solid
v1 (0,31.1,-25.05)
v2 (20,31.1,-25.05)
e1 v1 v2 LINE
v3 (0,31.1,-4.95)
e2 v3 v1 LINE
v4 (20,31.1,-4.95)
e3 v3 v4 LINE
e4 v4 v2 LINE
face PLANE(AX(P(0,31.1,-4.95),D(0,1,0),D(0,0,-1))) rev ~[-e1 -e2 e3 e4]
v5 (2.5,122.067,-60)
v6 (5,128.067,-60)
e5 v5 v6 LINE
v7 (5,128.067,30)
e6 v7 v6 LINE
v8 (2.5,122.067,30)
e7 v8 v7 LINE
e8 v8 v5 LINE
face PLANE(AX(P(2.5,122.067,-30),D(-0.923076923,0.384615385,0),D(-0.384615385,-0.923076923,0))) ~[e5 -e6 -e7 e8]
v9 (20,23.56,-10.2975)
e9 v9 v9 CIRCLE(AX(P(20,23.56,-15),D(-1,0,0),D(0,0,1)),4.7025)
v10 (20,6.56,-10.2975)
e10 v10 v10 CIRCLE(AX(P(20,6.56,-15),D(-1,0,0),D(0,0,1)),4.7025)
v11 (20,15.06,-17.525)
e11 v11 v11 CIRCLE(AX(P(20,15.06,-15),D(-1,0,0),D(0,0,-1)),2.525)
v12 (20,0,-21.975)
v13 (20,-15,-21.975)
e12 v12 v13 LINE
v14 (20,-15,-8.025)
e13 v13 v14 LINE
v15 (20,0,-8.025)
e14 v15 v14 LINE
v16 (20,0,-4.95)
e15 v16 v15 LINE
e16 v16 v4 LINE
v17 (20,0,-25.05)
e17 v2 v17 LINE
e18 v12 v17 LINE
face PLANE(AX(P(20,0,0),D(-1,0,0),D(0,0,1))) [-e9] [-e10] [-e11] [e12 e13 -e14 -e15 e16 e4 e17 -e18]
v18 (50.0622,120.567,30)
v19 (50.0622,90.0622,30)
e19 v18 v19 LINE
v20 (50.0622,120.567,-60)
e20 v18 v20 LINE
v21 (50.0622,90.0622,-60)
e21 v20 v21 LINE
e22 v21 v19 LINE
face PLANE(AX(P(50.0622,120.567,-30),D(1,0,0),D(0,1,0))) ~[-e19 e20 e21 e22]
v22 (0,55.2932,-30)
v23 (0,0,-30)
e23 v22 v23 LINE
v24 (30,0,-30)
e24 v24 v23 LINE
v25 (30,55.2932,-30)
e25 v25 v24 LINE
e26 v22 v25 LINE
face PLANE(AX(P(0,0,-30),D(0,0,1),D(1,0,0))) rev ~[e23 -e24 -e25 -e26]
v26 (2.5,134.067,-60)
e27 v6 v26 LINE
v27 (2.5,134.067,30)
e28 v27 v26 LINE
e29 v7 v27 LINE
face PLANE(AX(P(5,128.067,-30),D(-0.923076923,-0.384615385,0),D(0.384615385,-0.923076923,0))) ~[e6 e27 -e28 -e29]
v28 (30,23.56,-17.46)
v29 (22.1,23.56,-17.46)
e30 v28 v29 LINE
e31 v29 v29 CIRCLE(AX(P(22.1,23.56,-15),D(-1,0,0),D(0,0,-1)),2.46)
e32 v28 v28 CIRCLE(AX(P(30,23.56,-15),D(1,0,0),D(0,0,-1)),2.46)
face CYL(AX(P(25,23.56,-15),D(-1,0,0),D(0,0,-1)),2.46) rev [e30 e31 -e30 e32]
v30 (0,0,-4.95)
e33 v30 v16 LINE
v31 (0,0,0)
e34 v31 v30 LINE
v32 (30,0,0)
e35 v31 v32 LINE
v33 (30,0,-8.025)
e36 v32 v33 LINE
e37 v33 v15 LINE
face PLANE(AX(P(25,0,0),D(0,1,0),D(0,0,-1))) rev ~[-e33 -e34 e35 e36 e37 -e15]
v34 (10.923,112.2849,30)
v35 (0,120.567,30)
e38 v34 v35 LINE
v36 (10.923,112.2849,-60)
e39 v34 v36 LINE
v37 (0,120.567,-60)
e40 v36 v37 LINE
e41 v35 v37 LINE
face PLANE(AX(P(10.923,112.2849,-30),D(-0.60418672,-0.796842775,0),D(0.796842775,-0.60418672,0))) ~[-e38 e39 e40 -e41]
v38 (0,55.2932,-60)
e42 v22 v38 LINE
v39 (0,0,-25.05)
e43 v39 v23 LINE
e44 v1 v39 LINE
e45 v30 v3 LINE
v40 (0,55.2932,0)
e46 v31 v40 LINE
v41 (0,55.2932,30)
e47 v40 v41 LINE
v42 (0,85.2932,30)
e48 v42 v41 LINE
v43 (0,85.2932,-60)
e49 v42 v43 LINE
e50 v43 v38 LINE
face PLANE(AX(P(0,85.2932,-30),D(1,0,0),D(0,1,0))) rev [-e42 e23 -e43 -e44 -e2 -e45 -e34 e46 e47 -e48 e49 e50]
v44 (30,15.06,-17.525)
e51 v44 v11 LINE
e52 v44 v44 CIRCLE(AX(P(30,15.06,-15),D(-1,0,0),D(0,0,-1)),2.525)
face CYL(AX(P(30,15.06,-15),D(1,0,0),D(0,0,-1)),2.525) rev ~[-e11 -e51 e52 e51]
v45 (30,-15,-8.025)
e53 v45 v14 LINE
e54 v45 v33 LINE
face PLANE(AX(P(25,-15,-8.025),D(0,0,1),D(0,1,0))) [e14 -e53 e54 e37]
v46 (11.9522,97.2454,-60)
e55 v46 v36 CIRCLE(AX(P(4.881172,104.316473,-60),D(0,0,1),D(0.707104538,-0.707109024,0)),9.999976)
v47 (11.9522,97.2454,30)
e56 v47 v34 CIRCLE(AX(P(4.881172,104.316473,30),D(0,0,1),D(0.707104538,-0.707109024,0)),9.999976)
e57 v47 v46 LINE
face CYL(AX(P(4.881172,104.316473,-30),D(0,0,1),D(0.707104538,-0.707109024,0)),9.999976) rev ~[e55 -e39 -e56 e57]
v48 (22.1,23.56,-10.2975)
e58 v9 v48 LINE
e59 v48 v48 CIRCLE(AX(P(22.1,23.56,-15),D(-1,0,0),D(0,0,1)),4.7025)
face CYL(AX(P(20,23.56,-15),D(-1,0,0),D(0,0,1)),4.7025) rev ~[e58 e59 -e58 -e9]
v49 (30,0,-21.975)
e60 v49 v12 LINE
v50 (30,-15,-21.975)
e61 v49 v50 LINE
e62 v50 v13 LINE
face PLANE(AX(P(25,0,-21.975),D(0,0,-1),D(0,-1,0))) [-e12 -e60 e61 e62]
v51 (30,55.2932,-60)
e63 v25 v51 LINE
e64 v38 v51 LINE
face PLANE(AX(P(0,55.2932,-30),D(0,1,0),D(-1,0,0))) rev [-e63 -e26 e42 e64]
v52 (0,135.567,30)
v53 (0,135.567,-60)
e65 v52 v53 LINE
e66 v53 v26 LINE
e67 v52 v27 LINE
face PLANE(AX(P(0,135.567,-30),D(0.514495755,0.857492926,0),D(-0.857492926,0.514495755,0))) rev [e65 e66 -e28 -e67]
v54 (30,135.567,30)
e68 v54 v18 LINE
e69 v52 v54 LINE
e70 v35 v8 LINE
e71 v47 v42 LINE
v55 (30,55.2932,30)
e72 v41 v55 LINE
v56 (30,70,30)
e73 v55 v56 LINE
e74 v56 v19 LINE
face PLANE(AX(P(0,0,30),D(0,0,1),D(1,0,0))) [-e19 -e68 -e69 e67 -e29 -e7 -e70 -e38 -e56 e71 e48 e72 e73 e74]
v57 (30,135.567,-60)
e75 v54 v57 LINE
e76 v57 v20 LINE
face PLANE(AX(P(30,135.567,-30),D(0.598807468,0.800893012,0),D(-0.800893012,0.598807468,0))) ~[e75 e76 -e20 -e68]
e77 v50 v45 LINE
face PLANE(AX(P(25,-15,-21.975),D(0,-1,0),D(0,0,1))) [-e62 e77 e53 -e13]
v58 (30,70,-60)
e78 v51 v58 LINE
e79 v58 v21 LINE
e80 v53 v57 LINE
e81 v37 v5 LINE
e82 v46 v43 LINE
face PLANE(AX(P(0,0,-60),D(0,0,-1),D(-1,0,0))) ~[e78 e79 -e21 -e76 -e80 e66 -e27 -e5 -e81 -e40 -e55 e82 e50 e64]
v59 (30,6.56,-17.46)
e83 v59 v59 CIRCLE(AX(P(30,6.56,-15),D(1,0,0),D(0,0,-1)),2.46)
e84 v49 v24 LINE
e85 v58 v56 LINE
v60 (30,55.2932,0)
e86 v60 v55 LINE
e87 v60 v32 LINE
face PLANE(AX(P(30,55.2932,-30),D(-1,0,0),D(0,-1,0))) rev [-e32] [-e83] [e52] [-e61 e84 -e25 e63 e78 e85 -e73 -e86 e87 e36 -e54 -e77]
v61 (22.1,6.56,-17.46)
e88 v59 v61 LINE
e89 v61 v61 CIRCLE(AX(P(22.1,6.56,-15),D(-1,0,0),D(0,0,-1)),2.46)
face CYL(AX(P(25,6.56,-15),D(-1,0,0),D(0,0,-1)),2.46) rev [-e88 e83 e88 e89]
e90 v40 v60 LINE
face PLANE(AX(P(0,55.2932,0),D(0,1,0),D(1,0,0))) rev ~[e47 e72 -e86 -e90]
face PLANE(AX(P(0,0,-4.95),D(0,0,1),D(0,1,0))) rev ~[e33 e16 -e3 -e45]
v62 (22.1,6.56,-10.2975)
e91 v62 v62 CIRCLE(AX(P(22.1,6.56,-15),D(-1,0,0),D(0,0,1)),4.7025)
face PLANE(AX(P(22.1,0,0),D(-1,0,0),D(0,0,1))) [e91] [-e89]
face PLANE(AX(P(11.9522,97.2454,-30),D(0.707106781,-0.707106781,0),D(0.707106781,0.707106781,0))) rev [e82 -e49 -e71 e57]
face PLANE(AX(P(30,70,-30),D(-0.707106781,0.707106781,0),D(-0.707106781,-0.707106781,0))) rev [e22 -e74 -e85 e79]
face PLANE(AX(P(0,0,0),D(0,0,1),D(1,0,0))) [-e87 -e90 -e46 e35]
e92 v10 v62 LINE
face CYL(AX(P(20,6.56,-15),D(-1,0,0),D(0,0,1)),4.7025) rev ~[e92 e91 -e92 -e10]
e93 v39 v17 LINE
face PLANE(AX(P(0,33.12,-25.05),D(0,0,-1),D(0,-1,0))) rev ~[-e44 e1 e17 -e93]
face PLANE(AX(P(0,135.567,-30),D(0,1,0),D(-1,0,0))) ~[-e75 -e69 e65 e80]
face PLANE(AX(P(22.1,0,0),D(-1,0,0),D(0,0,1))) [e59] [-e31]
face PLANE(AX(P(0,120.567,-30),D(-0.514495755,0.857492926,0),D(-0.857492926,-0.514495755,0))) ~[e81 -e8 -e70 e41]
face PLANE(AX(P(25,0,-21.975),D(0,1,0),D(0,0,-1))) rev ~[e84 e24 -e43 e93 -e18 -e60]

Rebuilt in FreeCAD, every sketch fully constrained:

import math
import FreeCAD as App
import Part
import Sketcher
Q = App.Units.Quantity


def add_polygon(sketch, points):
    """Adds a closed chain of lines whose ends are joined by coincident constraints."""
    first, n = sketch.GeometryCount, len(points)
    for a, b in zip(points, points[1:] + points[:1]):
        sketch.addGeometry(Part.LineSegment(App.Vector(*a, 0), App.Vector(*b, 0)), False)
    for i in range(n):
        sketch.addConstraint(Sketcher.Constraint("Coincident", first + i, 2, first + (i + 1) % n, 1))

doc = App.newDocument("Part")
body = doc.addObject("PartDesign::Body", "Body")

sketch1 = doc.addObject("Sketcher::SketchObject", "Sketch")
body.addObject(sketch1)
sketch1.AttachmentSupport = (doc.XY_Plane, [""])
sketch1.MapMode = "FlatFace"
add_polygon(sketch1, [(0, 40), (0, 0), (25, 0), (25, 40)])
sketch1.addConstraint([
    Sketcher.Constraint("Vertical", 0),
    Sketcher.Constraint("Horizontal", 1),
    Sketcher.Constraint("Vertical", 2),
    Sketcher.Constraint("Horizontal", 3),
    Sketcher.Constraint("Coincident", 0, 2, -1, 1),
    Sketcher.Constraint("DistanceX", 1, 1, 1, 2, Q("25 mm")),
    Sketcher.Constraint("DistanceY", 0, 2, 0, 1, Q("40 mm")),
])
pad1 = doc.addObject("PartDesign::Pad", "Pad")
body.addObject(pad1)
pad1.Profile = sketch1
pad1.Length = 30
pad1.Reversed = True

sketch2 = doc.addObject("Sketcher::SketchObject", "Sketch001")
body.addObject(sketch2)
sketch2.AttachmentSupport = (doc.YZ_Plane, [""])
sketch2.MapMode = "FlatFace"
sketch2.AttachmentOffset = App.Placement(App.Vector(0, 0, 25), App.Rotation())
sketch2.addGeometry(Part.Circle(App.Vector(6.56, -15, 0), App.Vector(0, 0, 1), 2.46), False)
sketch2.addConstraint([
    Sketcher.Constraint("Diameter", 0, Q("4.92 mm")),
    Sketcher.Constraint("DistanceY", 0, 3, -1, 1, Q("15 mm")),
    Sketcher.Constraint("DistanceX", -1, 1, 0, 3, Q("6.56 mm")),
])
pocket1 = doc.addObject("PartDesign::Pocket", "Pocket")
body.addObject(pocket1)
pocket1.Profile = sketch2
pocket1.Length = 30

sketch3 = doc.addObject("Sketcher::SketchObject", "Sketch002")
body.addObject(sketch3)
sketch3.AttachmentSupport = (doc.YZ_Plane, [""])
sketch3.MapMode = "FlatFace"
add_polygon(sketch3, [(0, -25.05), (0, -4.95), (33.12, -4.95), (33.12, -25.05)])
sketch3.addConstraint([
    Sketcher.Constraint("Vertical", 0),
    Sketcher.Constraint("Horizontal", 1),
    Sketcher.Constraint("Vertical", 2),
    Sketcher.Constraint("Horizontal", 3),
    Sketcher.Constraint("PointOnObject", 0, 2, -2),
    Sketcher.Constraint("DistanceY", 0, 1, 0, 2, Q("20.1 mm")),
    Sketcher.Constraint("DistanceX", 1, 1, 1, 2, Q("33.12 mm")),
    Sketcher.Constraint("DistanceY", 0, 2, -1, 1, Q("4.95 mm")),
])
pocket2 = doc.addObject("PartDesign::Pocket", "Pocket001")
body.addObject(pocket2)
pocket2.Profile = sketch3
pocket2.Length = 20
pocket2.Reversed = True

sketch4 = doc.addObject("Sketcher::SketchObject", "Sketch003")
body.addObject(sketch4)
sketch4.AttachmentSupport = (doc.XZ_Plane, [""])
sketch4.MapMode = "FlatFace"
add_polygon(sketch4, [(25, -8.025), (20, -8.025), (20, -21.975), (25, -21.975)])
sketch4.addConstraint([
    Sketcher.Constraint("Horizontal", 0),
    Sketcher.Constraint("Vertical", 1),
    Sketcher.Constraint("Horizontal", 2),
    Sketcher.Constraint("Vertical", 3),
    Sketcher.Constraint("DistanceY", 1, 2, 1, 1, Q("13.95 mm")),
    Sketcher.Constraint("DistanceX", 0, 2, 0, 1, Q("5 mm")),
    Sketcher.Constraint("DistanceX", -1, 1, 0, 2, Q("20 mm")),
    Sketcher.Constraint("DistanceY", 0, 2, -1, 1, Q("8.025 mm")),
])
pad2 = doc.addObject("PartDesign::Pad", "Pad001")
body.addObject(pad2)
pad2.Profile = sketch4
pad2.Length = 15

sketch5 = doc.addObject("Sketcher::SketchObject", "Sketch004")
body.addObject(sketch5)
sketch5.AttachmentSupport = (doc.YZ_Plane, [""])
sketch5.MapMode = "FlatFace"
sketch5.AttachmentOffset = App.Placement(App.Vector(0, 0, 20), App.Rotation())
sketch5.addGeometry([
    Part.Circle(App.Vector(6.56, -15, 0), App.Vector(0, 0, 1), 4.7025),
    Part.Circle(App.Vector(6.56, -15, 0), App.Vector(0, 0, 1), 2.46),
], False)
sketch5.addConstraint([
    Sketcher.Constraint("Coincident", 1, 3, 0, 3),
    Sketcher.Constraint("Diameter", 0, Q("9.405 mm")),
    Sketcher.Constraint("Diameter", 1, Q("4.92 mm")),
    Sketcher.Constraint("DistanceY", 0, 3, -1, 1, Q("15 mm")),
    Sketcher.Constraint("DistanceX", -1, 1, 0, 3, Q("6.56 mm")),
])
pocket3 = doc.addObject("PartDesign::Pocket", "Pocket002")
body.addObject(pocket3)
pocket3.Profile = sketch5
pocket3.Length = 2.1
pocket3.Reversed = True

sketch6 = doc.addObject("Sketcher::SketchObject", "Sketch005")
body.addObject(sketch6)
sketch6.AttachmentSupport = (doc.YZ_Plane, [""])
sketch6.MapMode = "FlatFace"
sketch6.AttachmentOffset = App.Placement(App.Vector(0, 0, 25), App.Rotation())
sketch6.addGeometry(Part.Circle(App.Vector(23.56, -15, 0), App.Vector(0, 0, 1), 2.46), False)
sketch6.addConstraint([
    Sketcher.Constraint("Diameter", 0, Q("4.92 mm")),
    Sketcher.Constraint("DistanceY", 0, 3, -1, 1, Q("15 mm")),
    Sketcher.Constraint("DistanceX", -1, 1, 0, 3, Q("23.56 mm")),
])
pocket4 = doc.addObject("PartDesign::Pocket", "Pocket003")
body.addObject(pocket4)
pocket4.Profile = sketch6
pocket4.Length = 10

sketch7 = doc.addObject("Sketcher::SketchObject", "Sketch006")
body.addObject(sketch7)
sketch7.AttachmentSupport = (doc.YZ_Plane, [""])
sketch7.MapMode = "FlatFace"
sketch7.AttachmentOffset = App.Placement(App.Vector(0, 0, 20), App.Rotation())
sketch7.addGeometry([
    Part.Circle(App.Vector(23.56, -15, 0), App.Vector(0, 0, 1), 4.7025),
    Part.Circle(App.Vector(23.56, -15, 0), App.Vector(0, 0, 1), 2.46),
], False)
sketch7.addConstraint([
    Sketcher.Constraint("Coincident", 1, 3, 0, 3),
    Sketcher.Constraint("Diameter", 0, Q("9.405 mm")),
    Sketcher.Constraint("Diameter", 1, Q("4.92 mm")),
    Sketcher.Constraint("DistanceY", 0, 3, -1, 1, Q("15 mm")),
    Sketcher.Constraint("DistanceX", -1, 1, 0, 3, Q("23.56 mm")),
])
pocket5 = doc.addObject("PartDesign::Pocket", "Pocket004")
body.addObject(pocket5)
pocket5.Profile = sketch7
pocket5.Length = 2.1
pocket5.Reversed = True

sketch8 = doc.addObject("Sketcher::SketchObject", "Sketch007")
body.addObject(sketch8)
sketch8.AttachmentSupport = (doc.YZ_Plane, [""])
sketch8.MapMode = "FlatFace"
sketch8.AttachmentOffset = App.Placement(App.Vector(0, 0, 25), App.Rotation())
add_polygon(sketch8, [(0, -30), (40, -30), (40, 0), (0, 0), (0, -8.025), (-15, -8.025), (-15, -21.975), (0, -21.975)])
sketch8.addGeometry(Part.Circle(App.Vector(6.56, -15, 0), App.Vector(0, 0, 1), 2.46), False)
sketch8.addGeometry(Part.Circle(App.Vector(23.56, -15, 0), App.Vector(0, 0, 1), 2.46), False)
sketch8.addConstraint([
    Sketcher.Constraint("Horizontal", 0),
    Sketcher.Constraint("Vertical", 1),
    Sketcher.Constraint("Horizontal", 2),
    Sketcher.Constraint("Vertical", 3),
    Sketcher.Constraint("Horizontal", 4),
    Sketcher.Constraint("Vertical", 5),
    Sketcher.Constraint("Horizontal", 6),
    Sketcher.Constraint("Vertical", 7),
    Sketcher.Constraint("Coincident", 2, 2, -1, 1),
    Sketcher.Constraint("Equal", 8, 9),
    Sketcher.Constraint("PointOnObject", 6, 2, -2),
    Sketcher.Constraint("Horizontal", 8, 3, 9, 3),
    Sketcher.Constraint("Equal", 3, 7),
    Sketcher.Constraint("Diameter", 8, Q("4.92 mm")),
    Sketcher.Constraint("DistanceX", 0, 1, 0, 2, Q("40 mm")),
    Sketcher.Constraint("DistanceX", 4, 2, 4, 1, Q("15 mm")),
    Sketcher.Constraint("DistanceY", 1, 1, 1, 2, Q("30 mm")),
    Sketcher.Constraint("DistanceY", 8, 3, -1, 1, Q("15 mm")),
    Sketcher.Constraint("DistanceX", 8, 3, 9, 3, Q("17 mm")),
    Sketcher.Constraint("DistanceY", 5, 2, 5, 1, Q("13.95 mm")),
    Sketcher.Constraint("DistanceX", -1, 1, 8, 3, Q("6.56 mm")),
])
pad3 = doc.addObject("PartDesign::Pad", "Pad002")
body.addObject(pad3)
pad3.Profile = sketch8
pad3.Length = 5

sketch9 = doc.addObject("Sketcher::SketchObject", "Sketch008")
body.addObject(sketch9)
sketch9.AttachmentSupport = (doc.XZ_Plane, [""])
sketch9.MapMode = "FlatFace"
sketch9.AttachmentOffset = App.Placement(App.Vector(0, 0, -40), App.Rotation())
add_polygon(sketch9, [(30, -30), (0, -30), (0, 0), (30, 0)])
sketch9.addConstraint([
    Sketcher.Constraint("Horizontal", 0),
    Sketcher.Constraint("Vertical", 1),
    Sketcher.Constraint("Horizontal", 2),
    Sketcher.Constraint("Vertical", 3),
    Sketcher.Constraint("Coincident", 1, 2, -1, 1),
    Sketcher.Constraint("Equal", 2, 1),
    Sketcher.Constraint("DistanceX", 0, 2, 0, 1, Q("30 mm")),
])
pad4 = doc.addObject("PartDesign::Pad", "Pad003")
body.addObject(pad4)
pad4.Profile = sketch9
pad4.Length = 30
pad4.Reversed = True

sketch10 = doc.addObject("Sketcher::SketchObject", "Sketch009")
body.addObject(sketch10)
sketch10.AttachmentSupport = (doc.YZ_Plane, [""])
sketch10.MapMode = "FlatFace"
sketch10.AttachmentOffset = App.Placement(App.Vector(0, 0, 30), App.Rotation())
sketch10.addGeometry(Part.Circle(App.Vector(15.06, -15, 0), App.Vector(0, 0, 1), 2.525), False)
sketch10.addConstraint([
    Sketcher.Constraint("Diameter", 0, Q("5.05 mm")),
    Sketcher.Constraint("DistanceY", 0, 3, -1, 1, Q("15 mm")),
    Sketcher.Constraint("DistanceX", -1, 1, 0, 3, Q("15.06 mm")),
])
pocket6 = doc.addObject("PartDesign::Pocket", "Pocket005")
body.addObject(pocket6)
pocket6.Profile = sketch10
pocket6.Length = 30

sketch11 = doc.addObject("Sketcher::SketchObject", "Sketch010")
body.addObject(sketch11)
sketch11.AttachmentSupport = (doc.YZ_Plane, [""])
sketch11.MapMode = "FlatFace"
add_polygon(sketch11, [(33.12, -4.95), (33.12, -25.05), (31.1, -25.05), (31.1, -4.95)])
sketch11.addConstraint([
    Sketcher.Constraint("Vertical", 0),
    Sketcher.Constraint("Horizontal", 1),
    Sketcher.Constraint("Vertical", 2),
    Sketcher.Constraint("Horizontal", 3),
    Sketcher.Constraint("DistanceX", 1, 2, 1, 1, Q("2.02 mm")),
    Sketcher.Constraint("DistanceY", 0, 2, 0, 1, Q("20.1 mm")),
    Sketcher.Constraint("DistanceX", -1, 1, 1, 2, Q("31.1 mm")),
    Sketcher.Constraint("DistanceY", 0, 2, -1, 1, Q("25.05 mm")),
])
pad5 = doc.addObject("PartDesign::Pad", "Pad004")
body.addObject(pad5)
pad5.Profile = sketch11
pad5.Length = 20

sketch12 = doc.addObject("Sketcher::SketchObject", "Sketch011")
body.addObject(sketch12)
sketch12.AttachmentSupport = (doc.XY_Plane, [""])
sketch12.MapMode = "FlatFace"
sketch12.addGeometry([
    Part.LineSegment(App.Vector(0, 85.2932, 0), App.Vector(0, 70, 0)),
    Part.LineSegment(App.Vector(0, 70, 0), App.Vector(30, 70, 0)),
    Part.LineSegment(App.Vector(30, 70, 0), App.Vector(50.0622, 90.0622, 0)),
    Part.LineSegment(App.Vector(50.0622, 90.0622, 0), App.Vector(50.0622, 120.567, 0)),
    Part.LineSegment(App.Vector(50.0622, 120.567, 0), App.Vector(30, 135.567, 0)),
    Part.LineSegment(App.Vector(30, 135.567, 0), App.Vector(0, 135.567, 0)),
    Part.LineSegment(App.Vector(0, 135.567, 0), App.Vector(2.5, 134.067, 0)),
    Part.LineSegment(App.Vector(2.5, 134.067, 0), App.Vector(5, 128.067, 0)),
    Part.LineSegment(App.Vector(5, 128.067, 0), App.Vector(2.5, 122.067, 0)),
    Part.LineSegment(App.Vector(2.5, 122.067, 0), App.Vector(0, 120.567, 0)),
    Part.LineSegment(App.Vector(0, 120.567, 0), App.Vector(10.923, 112.2849, 0)),
    Part.ArcOfCircle(Part.Circle(App.Vector(4.8811, 104.3165, 0), App.Vector(0, 0, 1), 10.000046), math.radians(-45), math.radians(52.829413)),
    Part.LineSegment(App.Vector(11.9522, 97.2454, 0), App.Vector(0, 85.2932, 0)),
], False)
sketch12.addConstraint([
    Sketcher.Constraint("Coincident", 0, 2, 1, 1),
    Sketcher.Constraint("Coincident", 1, 2, 2, 1),
    Sketcher.Constraint("Coincident", 2, 2, 3, 1),
    Sketcher.Constraint("Coincident", 3, 2, 4, 1),
    Sketcher.Constraint("Coincident", 4, 2, 5, 1),
    Sketcher.Constraint("Coincident", 5, 2, 6, 1),
    Sketcher.Constraint("Coincident", 6, 2, 7, 1),
    Sketcher.Constraint("Coincident", 7, 2, 8, 1),
    Sketcher.Constraint("Coincident", 8, 2, 9, 1),
    Sketcher.Constraint("Coincident", 9, 2, 10, 1),
    Sketcher.Constraint("Tangent", 10, 2, 11, 2),
    Sketcher.Constraint("Tangent", 11, 1, 12, 1),
    Sketcher.Constraint("Coincident", 12, 2, 0, 1),
    Sketcher.Constraint("Vertical", 0),
    Sketcher.Constraint("Horizontal", 1),
    Sketcher.Constraint("Vertical", 3),
    Sketcher.Constraint("Horizontal", 5),
    Sketcher.Constraint("PointOnObject", 0, 2, -2),
    Sketcher.Constraint("PointOnObject", 5, 2, -2),
    Sketcher.Constraint("PointOnObject", 9, 2, -2),
    Sketcher.Constraint("Parallel", 2, 12),
    Sketcher.Constraint("Horizontal", 3, 2, 9, 2),
    Sketcher.Constraint("Vertical", 1, 2, 4, 2),
    Sketcher.Constraint("Vertical", 6, 2, 8, 2),
    Sketcher.Constraint("Equal", 7, 8),
    Sketcher.Constraint("Equal", 6, 9),
    Sketcher.Constraint("Radius", 11, Q("10 mm")),
    Sketcher.Constraint("DistanceX", 1, 1, 1, 2, Q("30 mm")),
    Sketcher.Constraint("Angle", 2, Q("45 deg")),
    Sketcher.Constraint("DistanceY", -1, 1, 0, 2, Q("70 mm")),
    Sketcher.Constraint("DistanceX", -1, 1, 7, 2, Q("5 mm")),
    Sketcher.Constraint("DistanceY", 3, 2, 4, 2, Q("15 mm")),
    Sketcher.Constraint("DistanceY", 7, 2, 6, 2, Q("6 mm")),
    Sketcher.Constraint("Distance", 7, Q("6.5 mm")),
    Sketcher.Constraint("Angle", 10, Q("-37.1703 deg")),
    Sketcher.Constraint("Distance", 12, Q("16.903 mm")),
    Sketcher.Constraint("DistanceY", 0, 2, 0, 1, Q("15.2932 mm")),
    Sketcher.Constraint("DistanceY", 3, 1, 3, 2, Q("30.5048 mm")),
])
pad6 = doc.addObject("PartDesign::Pad", "Pad005")
body.addObject(pad6)
pad6.Profile = sketch12
pad6.Length = 30
pad6.Reversed = True

sketch13 = doc.addObject("Sketcher::SketchObject", "Sketch012")
body.addObject(sketch13)
sketch13.AttachmentSupport = (doc.XY_Plane, [""])
sketch13.MapMode = "FlatFace"
sketch13.addGeometry([
    Part.LineSegment(App.Vector(0, 55.2932, 0), App.Vector(30, 55.2932, 0)),
    Part.LineSegment(App.Vector(30, 55.2932, 0), App.Vector(30, 70, 0)),
    Part.LineSegment(App.Vector(30, 70, 0), App.Vector(50.0622, 90.0622, 0)),
    Part.LineSegment(App.Vector(50.0622, 90.0622, 0), App.Vector(50.0622, 120.567, 0)),
    Part.LineSegment(App.Vector(50.0622, 120.567, 0), App.Vector(30, 135.567, 0)),
    Part.LineSegment(App.Vector(30, 135.567, 0), App.Vector(0, 135.567, 0)),
    Part.LineSegment(App.Vector(0, 135.567, 0), App.Vector(2.5, 134.067, 0)),
    Part.LineSegment(App.Vector(2.5, 134.067, 0), App.Vector(5, 128.067, 0)),
    Part.LineSegment(App.Vector(5, 128.067, 0), App.Vector(2.5, 122.067, 0)),
    Part.LineSegment(App.Vector(2.5, 122.067, 0), App.Vector(0, 120.567, 0)),
    Part.LineSegment(App.Vector(0, 120.567, 0), App.Vector(10.923, 112.2849, 0)),
    Part.ArcOfCircle(Part.Circle(App.Vector(4.8811, 104.3165, 0), App.Vector(0, 0, 1), 10.000046), math.radians(-45), math.radians(52.829413)),
    Part.LineSegment(App.Vector(11.9522, 97.2454, 0), App.Vector(0, 85.2932, 0)),
    Part.LineSegment(App.Vector(0, 85.2932, 0), App.Vector(0, 55.2932, 0)),
], False)
sketch13.addConstraint([
    Sketcher.Constraint("Coincident", 0, 2, 1, 1),
    Sketcher.Constraint("Coincident", 1, 2, 2, 1),
    Sketcher.Constraint("Coincident", 2, 2, 3, 1),
    Sketcher.Constraint("Coincident", 3, 2, 4, 1),
    Sketcher.Constraint("Coincident", 4, 2, 5, 1),
    Sketcher.Constraint("Coincident", 5, 2, 6, 1),
    Sketcher.Constraint("Coincident", 6, 2, 7, 1),
    Sketcher.Constraint("Coincident", 7, 2, 8, 1),
    Sketcher.Constraint("Coincident", 8, 2, 9, 1),
    Sketcher.Constraint("Coincident", 9, 2, 10, 1),
    Sketcher.Constraint("Tangent", 10, 2, 11, 2),
    Sketcher.Constraint("Tangent", 11, 1, 12, 1),
    Sketcher.Constraint("Coincident", 12, 2, 13, 1),
    Sketcher.Constraint("Coincident", 13, 2, 0, 1),
    Sketcher.Constraint("Horizontal", 0),
    Sketcher.Constraint("Vertical", 1),
    Sketcher.Constraint("Vertical", 3),
    Sketcher.Constraint("Horizontal", 5),
    Sketcher.Constraint("Vertical", 13),
    Sketcher.Constraint("PointOnObject", 5, 2, -2),
    Sketcher.Constraint("PointOnObject", 9, 2, -2),
    Sketcher.Constraint("PointOnObject", 12, 2, -2),
    Sketcher.Constraint("Parallel", 2, 12),
    Sketcher.Constraint("Horizontal", 3, 2, 9, 2),
    Sketcher.Constraint("Vertical", 1, 2, 4, 2),
    Sketcher.Constraint("Vertical", 6, 2, 8, 2),
    Sketcher.Constraint("Equal", 5, 13),
    Sketcher.Constraint("Equal", 7, 8),
    Sketcher.Constraint("Equal", 6, 9),
    Sketcher.Constraint("DistanceX", 0, 1, 0, 2, Q("30 mm")),
    Sketcher.Constraint("Radius", 11, Q("10 mm")),
    Sketcher.Constraint("Angle", 2, Q("45 deg")),
    Sketcher.Constraint("DistanceY", -1, 1, 1, 2, Q("70 mm")),
    Sketcher.Constraint("DistanceX", -1, 1, 7, 2, Q("5 mm")),
    Sketcher.Constraint("DistanceY", 3, 2, 4, 2, Q("15 mm")),
    Sketcher.Constraint("DistanceY", 7, 2, 6, 2, Q("6 mm")),
    Sketcher.Constraint("Distance", 7, Q("6.5 mm")),
    Sketcher.Constraint("Angle", 10, Q("-37.1703 deg")),
    Sketcher.Constraint("Distance", 12, Q("16.903 mm")),
    Sketcher.Constraint("DistanceY", 1, 1, 1, 2, Q("14.7068 mm")),
    Sketcher.Constraint("DistanceY", 3, 1, 3, 2, Q("30.5048 mm")),
])
pad7 = doc.addObject("PartDesign::Pad", "Pad006")
body.addObject(pad7)
pad7.Profile = sketch13
pad7.Length = 30
doc.recompute()

datumplane = doc.addObject("PartDesign::Plane", "DatumPlane")
body.addObject(datumplane)
datumplane.AttachmentSupport = (doc.XY_Plane, [""])
datumplane.MapMode = "FlatFace"
datumplane.AttachmentOffset = App.Placement(App.Vector(0, 0, -15), App.Rotation())
mirrored = doc.addObject("PartDesign::Mirrored", "Mirrored")
body.addObject(mirrored)
mirrored.Originals = [pad7]
mirrored.MirrorPlane = (datumplane, [""])
body.Tip = mirrored

doc.recompute()
